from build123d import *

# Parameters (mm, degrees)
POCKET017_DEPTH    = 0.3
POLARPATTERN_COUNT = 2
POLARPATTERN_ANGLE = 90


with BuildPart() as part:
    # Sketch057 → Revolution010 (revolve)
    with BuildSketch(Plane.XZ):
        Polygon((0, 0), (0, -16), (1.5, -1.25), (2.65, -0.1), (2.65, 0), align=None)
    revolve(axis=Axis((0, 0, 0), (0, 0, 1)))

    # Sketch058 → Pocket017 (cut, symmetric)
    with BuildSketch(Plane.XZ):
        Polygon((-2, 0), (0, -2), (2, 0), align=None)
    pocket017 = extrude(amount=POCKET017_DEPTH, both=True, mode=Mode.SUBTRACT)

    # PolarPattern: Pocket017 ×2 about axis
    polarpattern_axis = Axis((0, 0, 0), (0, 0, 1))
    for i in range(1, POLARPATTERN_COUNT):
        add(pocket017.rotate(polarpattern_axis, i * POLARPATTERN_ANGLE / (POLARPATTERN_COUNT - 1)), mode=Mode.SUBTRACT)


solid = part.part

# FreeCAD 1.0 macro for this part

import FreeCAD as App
import Part
import Sketcher
Q = App.Units.Quantity


def add_polygon(sketch, points):
    """Adds a closed chain of lines whose ends are joined by coincident constraints."""
    first, n = sketch.GeometryCount, len(points)
    for a, b in zip(points, points[1:] + points[:1]):
        sketch.addGeometry(Part.LineSegment(App.Vector(*a, 0), App.Vector(*b, 0)), False)
    for i in range(n):
        sketch.addConstraint(Sketcher.Constraint("Coincident", first + i, 2, first + (i + 1) % n, 1))

doc = App.newDocument("Part")
params = doc.addObject("Spreadsheet::Sheet", "Params")
for row, (alias, value) in enumerate([
    ("sketch1_height", "16 mm"),
    ("sketch1_height2", "0.1 mm"),
    ("sketch1_width", "2.65 mm"),
    ("revolution_angle", "360 deg"),
    ("sketch2_width", "4 mm"),
    ("pocket1_length", "0.6 mm"),
], start=1):
    params.set(f"A{row}", alias)
    params.set(f"B{row}", "=" + value)
    params.setAlias(f"B{row}", alias)

body = doc.addObject("PartDesign::Body", "Body")

sketch1 = body.newObject("Sketcher::SketchObject", "Sketch")
sketch1.AttachmentSupport = (doc.getObject("XZ_Plane"), [""])
sketch1.MapMode = "FlatFace"
add_polygon(sketch1, [(0, 0), (0, -16), (1.5, -1.25), (2.65, -0.1), (2.65, 0)])
sketch1.addConstraint([
    Sketcher.Constraint("Vertical", 0),
    Sketcher.Constraint("Vertical", 3),
    Sketcher.Constraint("Horizontal", 4),
    Sketcher.Constraint("Coincident", 4, 2, -1, 1),
    Sketcher.Constraint("DistanceY", 0, 2, 0, 1, 16.0),
    Sketcher.Constraint("Angle", 2, Q("45 deg")),
    Sketcher.Constraint("DistanceY", 3, 1, 3, 2, 0.1),
    Sketcher.Constraint("DistanceX", 4, 2, 4, 1, 2.65),
    Sketcher.Constraint("DistanceX", -1, 1, 1, 2, 1.5),
])
sketch1.setExpression("Constraints[9]", "Params.sketch1_height")
sketch1.setExpression("Constraints[11]", "Params.sketch1_height2")
sketch1.setExpression("Constraints[12]", "Params.sketch1_width")
revolution = body.newObject("PartDesign::Revolution", "Revolution")
revolution.Profile = sketch1
revolution.ReferenceAxis = (sketch1, ["V_Axis"])
revolution.setExpression("Angle", "Params.revolution_angle")

sketch2 = body.newObject("Sketcher::SketchObject", "Sketch001")
sketch2.AttachmentSupport = (doc.getObject("XZ_Plane"), [""])
sketch2.MapMode = "FlatFace"
add_polygon(sketch2, [(-2, 0), (0, -2), (2, 0)])
sketch2.addConstraint([
    Sketcher.Constraint("Horizontal", 2),
    Sketcher.Constraint("Symmetric", 1, 2, 2, 2, -1, 1),
    Sketcher.Constraint("PointOnObject", 0, 2, -2),
    Sketcher.Constraint("Perpendicular", 0, 1),
    Sketcher.Constraint("DistanceX", 2, 2, 2, 1, 4.0),
])
sketch2.setExpression("Constraints[7]", "Params.sketch2_width")
pocket1 = body.newObject("PartDesign::Pocket", "Pocket")
pocket1.Profile = sketch2
pocket1.setExpression("Length", "Params.pocket1_length")
pocket1.Midplane = True
doc.recompute()

polarpattern = body.newObject("PartDesign::PolarPattern", "PolarPattern")
polarpattern.Originals = [pocket1]
polarpattern.Axis = (doc.getObject("Z_Axis"), [""])
polarpattern.Angle = 90
polarpattern.Occurrences = 2
body.Tip = polarpattern

doc.recompute()
